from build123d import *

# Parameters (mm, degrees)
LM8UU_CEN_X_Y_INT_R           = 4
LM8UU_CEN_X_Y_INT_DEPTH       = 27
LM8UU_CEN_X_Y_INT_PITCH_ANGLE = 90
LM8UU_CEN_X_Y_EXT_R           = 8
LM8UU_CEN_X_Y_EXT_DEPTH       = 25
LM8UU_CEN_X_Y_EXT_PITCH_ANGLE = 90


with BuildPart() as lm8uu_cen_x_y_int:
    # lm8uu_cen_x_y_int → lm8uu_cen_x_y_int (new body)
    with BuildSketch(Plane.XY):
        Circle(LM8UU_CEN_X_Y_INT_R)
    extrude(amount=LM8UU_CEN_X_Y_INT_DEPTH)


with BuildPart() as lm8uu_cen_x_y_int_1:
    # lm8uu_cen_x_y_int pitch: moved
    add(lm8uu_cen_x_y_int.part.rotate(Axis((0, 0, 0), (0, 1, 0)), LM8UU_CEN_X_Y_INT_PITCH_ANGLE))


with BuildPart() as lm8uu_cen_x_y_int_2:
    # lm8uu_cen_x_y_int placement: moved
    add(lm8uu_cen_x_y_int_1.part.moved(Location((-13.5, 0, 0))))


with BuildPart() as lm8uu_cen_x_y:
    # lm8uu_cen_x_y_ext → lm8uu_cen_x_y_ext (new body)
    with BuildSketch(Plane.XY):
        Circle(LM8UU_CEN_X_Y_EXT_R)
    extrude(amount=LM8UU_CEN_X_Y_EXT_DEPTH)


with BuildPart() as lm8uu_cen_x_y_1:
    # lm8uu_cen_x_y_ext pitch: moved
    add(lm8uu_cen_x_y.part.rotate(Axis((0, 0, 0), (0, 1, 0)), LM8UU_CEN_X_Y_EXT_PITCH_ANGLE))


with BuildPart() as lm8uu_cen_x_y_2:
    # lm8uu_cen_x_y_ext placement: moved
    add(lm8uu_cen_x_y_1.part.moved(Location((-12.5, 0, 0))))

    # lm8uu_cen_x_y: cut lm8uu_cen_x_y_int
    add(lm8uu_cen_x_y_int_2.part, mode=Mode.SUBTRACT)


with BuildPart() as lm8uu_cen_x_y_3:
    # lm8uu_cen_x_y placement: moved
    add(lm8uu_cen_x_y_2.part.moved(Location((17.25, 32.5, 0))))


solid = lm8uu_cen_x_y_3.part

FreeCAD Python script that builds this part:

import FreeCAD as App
import Part
import Sketcher
from FreeCAD import Vector

doc = App.newDocument("Part")
body = doc.addObject("PartDesign::Body", "Body")

# Sketch on XY plane
sketch1 = body.newObject("Sketcher::SketchObject", "Sketch")
sketch1.AttachmentSupport = (doc.getObject("XY_Plane"), [""])
sketch1.MapMode = "FlatFace"
sketch1.addGeometry(Part.Circle(Vector(0, 0, 0), Vector(0, 0, 1), 4), False)
sketch1.addConstraint(Sketcher.Constraint("Coincident", 0, 3, -1, 1))
sketch1.addConstraint(Sketcher.Constraint("Diameter", 0, 8.0))
pad1 = body.newObject("PartDesign::Pad", "Pad")
pad1.Profile = sketch1
pad1.Length = 27
body2 = doc.addObject("PartDesign::Body", "Body001")
doc.recompute()

body.Placement = App.Placement(Vector(0, 0, 0), App.Rotation(Vector(0, 1, 0), 90))
boolean = body2.newObject("PartDesign::Boolean", "Boolean")
boolean.Type = "Fuse"
boolean.addObjects([body])
body3 = doc.addObject("PartDesign::Body", "Body002")
doc.recompute()

body2.Placement = App.Placement(Vector(-13.5, 0, 0), App.Rotation(Vector(0, 0, 1), 0))
boolean2 = body3.newObject("PartDesign::Boolean", "Boolean001")
boolean2.Type = "Fuse"
boolean2.addObjects([body2])
body4 = doc.addObject("PartDesign::Body", "Body003")

# Sketch on XY plane
sketch2 = body4.newObject("Sketcher::SketchObject", "Sketch001")
sketch2.AttachmentSupport = (doc.getObject("XY_Plane003"), [""])
sketch2.MapMode = "FlatFace"
sketch2.addGeometry(Part.Circle(Vector(0, 0, 0), Vector(0, 0, 1), 8), False)
sketch2.addConstraint(Sketcher.Constraint("Coincident", 0, 3, -1, 1))
sketch2.addConstraint(Sketcher.Constraint("Diameter", 0, 16.0))
pad2 = body4.newObject("PartDesign::Pad", "Pad001")
pad2.Profile = sketch2
pad2.Length = 25
body5 = doc.addObject("PartDesign::Body", "Body004")
doc.recompute()

body4.Placement = App.Placement(Vector(0, 0, 0), App.Rotation(Vector(0, 1, 0), 90))
boolean3 = body5.newObject("PartDesign::Boolean", "Boolean002")
boolean3.Type = "Fuse"
boolean3.addObjects([body4])
body6 = doc.addObject("PartDesign::Body", "Body005")
doc.recompute()

body5.Placement = App.Placement(Vector(-12.5, 0, 0), App.Rotation(Vector(0, 0, 1), 0))
boolean4 = body6.newObject("PartDesign::Boolean", "Boolean003")
boolean4.Type = "Fuse"
boolean4.addObjects([body5])
doc.recompute()

boolean5 = body6.newObject("PartDesign::Boolean", "Boolean004")
boolean5.Type = "Cut"
boolean5.addObjects([body3])
body7 = doc.addObject("PartDesign::Body", "Body006")
doc.recompute()

body6.Placement = App.Placement(Vector(17.25, 32.5, 0), App.Rotation(Vector(0, 0, 1), 0))
boolean6 = body7.newObject("PartDesign::Boolean", "Boolean005")
boolean6.Type = "Fuse"
boolean6.addObjects([body6])

doc.recompute()
